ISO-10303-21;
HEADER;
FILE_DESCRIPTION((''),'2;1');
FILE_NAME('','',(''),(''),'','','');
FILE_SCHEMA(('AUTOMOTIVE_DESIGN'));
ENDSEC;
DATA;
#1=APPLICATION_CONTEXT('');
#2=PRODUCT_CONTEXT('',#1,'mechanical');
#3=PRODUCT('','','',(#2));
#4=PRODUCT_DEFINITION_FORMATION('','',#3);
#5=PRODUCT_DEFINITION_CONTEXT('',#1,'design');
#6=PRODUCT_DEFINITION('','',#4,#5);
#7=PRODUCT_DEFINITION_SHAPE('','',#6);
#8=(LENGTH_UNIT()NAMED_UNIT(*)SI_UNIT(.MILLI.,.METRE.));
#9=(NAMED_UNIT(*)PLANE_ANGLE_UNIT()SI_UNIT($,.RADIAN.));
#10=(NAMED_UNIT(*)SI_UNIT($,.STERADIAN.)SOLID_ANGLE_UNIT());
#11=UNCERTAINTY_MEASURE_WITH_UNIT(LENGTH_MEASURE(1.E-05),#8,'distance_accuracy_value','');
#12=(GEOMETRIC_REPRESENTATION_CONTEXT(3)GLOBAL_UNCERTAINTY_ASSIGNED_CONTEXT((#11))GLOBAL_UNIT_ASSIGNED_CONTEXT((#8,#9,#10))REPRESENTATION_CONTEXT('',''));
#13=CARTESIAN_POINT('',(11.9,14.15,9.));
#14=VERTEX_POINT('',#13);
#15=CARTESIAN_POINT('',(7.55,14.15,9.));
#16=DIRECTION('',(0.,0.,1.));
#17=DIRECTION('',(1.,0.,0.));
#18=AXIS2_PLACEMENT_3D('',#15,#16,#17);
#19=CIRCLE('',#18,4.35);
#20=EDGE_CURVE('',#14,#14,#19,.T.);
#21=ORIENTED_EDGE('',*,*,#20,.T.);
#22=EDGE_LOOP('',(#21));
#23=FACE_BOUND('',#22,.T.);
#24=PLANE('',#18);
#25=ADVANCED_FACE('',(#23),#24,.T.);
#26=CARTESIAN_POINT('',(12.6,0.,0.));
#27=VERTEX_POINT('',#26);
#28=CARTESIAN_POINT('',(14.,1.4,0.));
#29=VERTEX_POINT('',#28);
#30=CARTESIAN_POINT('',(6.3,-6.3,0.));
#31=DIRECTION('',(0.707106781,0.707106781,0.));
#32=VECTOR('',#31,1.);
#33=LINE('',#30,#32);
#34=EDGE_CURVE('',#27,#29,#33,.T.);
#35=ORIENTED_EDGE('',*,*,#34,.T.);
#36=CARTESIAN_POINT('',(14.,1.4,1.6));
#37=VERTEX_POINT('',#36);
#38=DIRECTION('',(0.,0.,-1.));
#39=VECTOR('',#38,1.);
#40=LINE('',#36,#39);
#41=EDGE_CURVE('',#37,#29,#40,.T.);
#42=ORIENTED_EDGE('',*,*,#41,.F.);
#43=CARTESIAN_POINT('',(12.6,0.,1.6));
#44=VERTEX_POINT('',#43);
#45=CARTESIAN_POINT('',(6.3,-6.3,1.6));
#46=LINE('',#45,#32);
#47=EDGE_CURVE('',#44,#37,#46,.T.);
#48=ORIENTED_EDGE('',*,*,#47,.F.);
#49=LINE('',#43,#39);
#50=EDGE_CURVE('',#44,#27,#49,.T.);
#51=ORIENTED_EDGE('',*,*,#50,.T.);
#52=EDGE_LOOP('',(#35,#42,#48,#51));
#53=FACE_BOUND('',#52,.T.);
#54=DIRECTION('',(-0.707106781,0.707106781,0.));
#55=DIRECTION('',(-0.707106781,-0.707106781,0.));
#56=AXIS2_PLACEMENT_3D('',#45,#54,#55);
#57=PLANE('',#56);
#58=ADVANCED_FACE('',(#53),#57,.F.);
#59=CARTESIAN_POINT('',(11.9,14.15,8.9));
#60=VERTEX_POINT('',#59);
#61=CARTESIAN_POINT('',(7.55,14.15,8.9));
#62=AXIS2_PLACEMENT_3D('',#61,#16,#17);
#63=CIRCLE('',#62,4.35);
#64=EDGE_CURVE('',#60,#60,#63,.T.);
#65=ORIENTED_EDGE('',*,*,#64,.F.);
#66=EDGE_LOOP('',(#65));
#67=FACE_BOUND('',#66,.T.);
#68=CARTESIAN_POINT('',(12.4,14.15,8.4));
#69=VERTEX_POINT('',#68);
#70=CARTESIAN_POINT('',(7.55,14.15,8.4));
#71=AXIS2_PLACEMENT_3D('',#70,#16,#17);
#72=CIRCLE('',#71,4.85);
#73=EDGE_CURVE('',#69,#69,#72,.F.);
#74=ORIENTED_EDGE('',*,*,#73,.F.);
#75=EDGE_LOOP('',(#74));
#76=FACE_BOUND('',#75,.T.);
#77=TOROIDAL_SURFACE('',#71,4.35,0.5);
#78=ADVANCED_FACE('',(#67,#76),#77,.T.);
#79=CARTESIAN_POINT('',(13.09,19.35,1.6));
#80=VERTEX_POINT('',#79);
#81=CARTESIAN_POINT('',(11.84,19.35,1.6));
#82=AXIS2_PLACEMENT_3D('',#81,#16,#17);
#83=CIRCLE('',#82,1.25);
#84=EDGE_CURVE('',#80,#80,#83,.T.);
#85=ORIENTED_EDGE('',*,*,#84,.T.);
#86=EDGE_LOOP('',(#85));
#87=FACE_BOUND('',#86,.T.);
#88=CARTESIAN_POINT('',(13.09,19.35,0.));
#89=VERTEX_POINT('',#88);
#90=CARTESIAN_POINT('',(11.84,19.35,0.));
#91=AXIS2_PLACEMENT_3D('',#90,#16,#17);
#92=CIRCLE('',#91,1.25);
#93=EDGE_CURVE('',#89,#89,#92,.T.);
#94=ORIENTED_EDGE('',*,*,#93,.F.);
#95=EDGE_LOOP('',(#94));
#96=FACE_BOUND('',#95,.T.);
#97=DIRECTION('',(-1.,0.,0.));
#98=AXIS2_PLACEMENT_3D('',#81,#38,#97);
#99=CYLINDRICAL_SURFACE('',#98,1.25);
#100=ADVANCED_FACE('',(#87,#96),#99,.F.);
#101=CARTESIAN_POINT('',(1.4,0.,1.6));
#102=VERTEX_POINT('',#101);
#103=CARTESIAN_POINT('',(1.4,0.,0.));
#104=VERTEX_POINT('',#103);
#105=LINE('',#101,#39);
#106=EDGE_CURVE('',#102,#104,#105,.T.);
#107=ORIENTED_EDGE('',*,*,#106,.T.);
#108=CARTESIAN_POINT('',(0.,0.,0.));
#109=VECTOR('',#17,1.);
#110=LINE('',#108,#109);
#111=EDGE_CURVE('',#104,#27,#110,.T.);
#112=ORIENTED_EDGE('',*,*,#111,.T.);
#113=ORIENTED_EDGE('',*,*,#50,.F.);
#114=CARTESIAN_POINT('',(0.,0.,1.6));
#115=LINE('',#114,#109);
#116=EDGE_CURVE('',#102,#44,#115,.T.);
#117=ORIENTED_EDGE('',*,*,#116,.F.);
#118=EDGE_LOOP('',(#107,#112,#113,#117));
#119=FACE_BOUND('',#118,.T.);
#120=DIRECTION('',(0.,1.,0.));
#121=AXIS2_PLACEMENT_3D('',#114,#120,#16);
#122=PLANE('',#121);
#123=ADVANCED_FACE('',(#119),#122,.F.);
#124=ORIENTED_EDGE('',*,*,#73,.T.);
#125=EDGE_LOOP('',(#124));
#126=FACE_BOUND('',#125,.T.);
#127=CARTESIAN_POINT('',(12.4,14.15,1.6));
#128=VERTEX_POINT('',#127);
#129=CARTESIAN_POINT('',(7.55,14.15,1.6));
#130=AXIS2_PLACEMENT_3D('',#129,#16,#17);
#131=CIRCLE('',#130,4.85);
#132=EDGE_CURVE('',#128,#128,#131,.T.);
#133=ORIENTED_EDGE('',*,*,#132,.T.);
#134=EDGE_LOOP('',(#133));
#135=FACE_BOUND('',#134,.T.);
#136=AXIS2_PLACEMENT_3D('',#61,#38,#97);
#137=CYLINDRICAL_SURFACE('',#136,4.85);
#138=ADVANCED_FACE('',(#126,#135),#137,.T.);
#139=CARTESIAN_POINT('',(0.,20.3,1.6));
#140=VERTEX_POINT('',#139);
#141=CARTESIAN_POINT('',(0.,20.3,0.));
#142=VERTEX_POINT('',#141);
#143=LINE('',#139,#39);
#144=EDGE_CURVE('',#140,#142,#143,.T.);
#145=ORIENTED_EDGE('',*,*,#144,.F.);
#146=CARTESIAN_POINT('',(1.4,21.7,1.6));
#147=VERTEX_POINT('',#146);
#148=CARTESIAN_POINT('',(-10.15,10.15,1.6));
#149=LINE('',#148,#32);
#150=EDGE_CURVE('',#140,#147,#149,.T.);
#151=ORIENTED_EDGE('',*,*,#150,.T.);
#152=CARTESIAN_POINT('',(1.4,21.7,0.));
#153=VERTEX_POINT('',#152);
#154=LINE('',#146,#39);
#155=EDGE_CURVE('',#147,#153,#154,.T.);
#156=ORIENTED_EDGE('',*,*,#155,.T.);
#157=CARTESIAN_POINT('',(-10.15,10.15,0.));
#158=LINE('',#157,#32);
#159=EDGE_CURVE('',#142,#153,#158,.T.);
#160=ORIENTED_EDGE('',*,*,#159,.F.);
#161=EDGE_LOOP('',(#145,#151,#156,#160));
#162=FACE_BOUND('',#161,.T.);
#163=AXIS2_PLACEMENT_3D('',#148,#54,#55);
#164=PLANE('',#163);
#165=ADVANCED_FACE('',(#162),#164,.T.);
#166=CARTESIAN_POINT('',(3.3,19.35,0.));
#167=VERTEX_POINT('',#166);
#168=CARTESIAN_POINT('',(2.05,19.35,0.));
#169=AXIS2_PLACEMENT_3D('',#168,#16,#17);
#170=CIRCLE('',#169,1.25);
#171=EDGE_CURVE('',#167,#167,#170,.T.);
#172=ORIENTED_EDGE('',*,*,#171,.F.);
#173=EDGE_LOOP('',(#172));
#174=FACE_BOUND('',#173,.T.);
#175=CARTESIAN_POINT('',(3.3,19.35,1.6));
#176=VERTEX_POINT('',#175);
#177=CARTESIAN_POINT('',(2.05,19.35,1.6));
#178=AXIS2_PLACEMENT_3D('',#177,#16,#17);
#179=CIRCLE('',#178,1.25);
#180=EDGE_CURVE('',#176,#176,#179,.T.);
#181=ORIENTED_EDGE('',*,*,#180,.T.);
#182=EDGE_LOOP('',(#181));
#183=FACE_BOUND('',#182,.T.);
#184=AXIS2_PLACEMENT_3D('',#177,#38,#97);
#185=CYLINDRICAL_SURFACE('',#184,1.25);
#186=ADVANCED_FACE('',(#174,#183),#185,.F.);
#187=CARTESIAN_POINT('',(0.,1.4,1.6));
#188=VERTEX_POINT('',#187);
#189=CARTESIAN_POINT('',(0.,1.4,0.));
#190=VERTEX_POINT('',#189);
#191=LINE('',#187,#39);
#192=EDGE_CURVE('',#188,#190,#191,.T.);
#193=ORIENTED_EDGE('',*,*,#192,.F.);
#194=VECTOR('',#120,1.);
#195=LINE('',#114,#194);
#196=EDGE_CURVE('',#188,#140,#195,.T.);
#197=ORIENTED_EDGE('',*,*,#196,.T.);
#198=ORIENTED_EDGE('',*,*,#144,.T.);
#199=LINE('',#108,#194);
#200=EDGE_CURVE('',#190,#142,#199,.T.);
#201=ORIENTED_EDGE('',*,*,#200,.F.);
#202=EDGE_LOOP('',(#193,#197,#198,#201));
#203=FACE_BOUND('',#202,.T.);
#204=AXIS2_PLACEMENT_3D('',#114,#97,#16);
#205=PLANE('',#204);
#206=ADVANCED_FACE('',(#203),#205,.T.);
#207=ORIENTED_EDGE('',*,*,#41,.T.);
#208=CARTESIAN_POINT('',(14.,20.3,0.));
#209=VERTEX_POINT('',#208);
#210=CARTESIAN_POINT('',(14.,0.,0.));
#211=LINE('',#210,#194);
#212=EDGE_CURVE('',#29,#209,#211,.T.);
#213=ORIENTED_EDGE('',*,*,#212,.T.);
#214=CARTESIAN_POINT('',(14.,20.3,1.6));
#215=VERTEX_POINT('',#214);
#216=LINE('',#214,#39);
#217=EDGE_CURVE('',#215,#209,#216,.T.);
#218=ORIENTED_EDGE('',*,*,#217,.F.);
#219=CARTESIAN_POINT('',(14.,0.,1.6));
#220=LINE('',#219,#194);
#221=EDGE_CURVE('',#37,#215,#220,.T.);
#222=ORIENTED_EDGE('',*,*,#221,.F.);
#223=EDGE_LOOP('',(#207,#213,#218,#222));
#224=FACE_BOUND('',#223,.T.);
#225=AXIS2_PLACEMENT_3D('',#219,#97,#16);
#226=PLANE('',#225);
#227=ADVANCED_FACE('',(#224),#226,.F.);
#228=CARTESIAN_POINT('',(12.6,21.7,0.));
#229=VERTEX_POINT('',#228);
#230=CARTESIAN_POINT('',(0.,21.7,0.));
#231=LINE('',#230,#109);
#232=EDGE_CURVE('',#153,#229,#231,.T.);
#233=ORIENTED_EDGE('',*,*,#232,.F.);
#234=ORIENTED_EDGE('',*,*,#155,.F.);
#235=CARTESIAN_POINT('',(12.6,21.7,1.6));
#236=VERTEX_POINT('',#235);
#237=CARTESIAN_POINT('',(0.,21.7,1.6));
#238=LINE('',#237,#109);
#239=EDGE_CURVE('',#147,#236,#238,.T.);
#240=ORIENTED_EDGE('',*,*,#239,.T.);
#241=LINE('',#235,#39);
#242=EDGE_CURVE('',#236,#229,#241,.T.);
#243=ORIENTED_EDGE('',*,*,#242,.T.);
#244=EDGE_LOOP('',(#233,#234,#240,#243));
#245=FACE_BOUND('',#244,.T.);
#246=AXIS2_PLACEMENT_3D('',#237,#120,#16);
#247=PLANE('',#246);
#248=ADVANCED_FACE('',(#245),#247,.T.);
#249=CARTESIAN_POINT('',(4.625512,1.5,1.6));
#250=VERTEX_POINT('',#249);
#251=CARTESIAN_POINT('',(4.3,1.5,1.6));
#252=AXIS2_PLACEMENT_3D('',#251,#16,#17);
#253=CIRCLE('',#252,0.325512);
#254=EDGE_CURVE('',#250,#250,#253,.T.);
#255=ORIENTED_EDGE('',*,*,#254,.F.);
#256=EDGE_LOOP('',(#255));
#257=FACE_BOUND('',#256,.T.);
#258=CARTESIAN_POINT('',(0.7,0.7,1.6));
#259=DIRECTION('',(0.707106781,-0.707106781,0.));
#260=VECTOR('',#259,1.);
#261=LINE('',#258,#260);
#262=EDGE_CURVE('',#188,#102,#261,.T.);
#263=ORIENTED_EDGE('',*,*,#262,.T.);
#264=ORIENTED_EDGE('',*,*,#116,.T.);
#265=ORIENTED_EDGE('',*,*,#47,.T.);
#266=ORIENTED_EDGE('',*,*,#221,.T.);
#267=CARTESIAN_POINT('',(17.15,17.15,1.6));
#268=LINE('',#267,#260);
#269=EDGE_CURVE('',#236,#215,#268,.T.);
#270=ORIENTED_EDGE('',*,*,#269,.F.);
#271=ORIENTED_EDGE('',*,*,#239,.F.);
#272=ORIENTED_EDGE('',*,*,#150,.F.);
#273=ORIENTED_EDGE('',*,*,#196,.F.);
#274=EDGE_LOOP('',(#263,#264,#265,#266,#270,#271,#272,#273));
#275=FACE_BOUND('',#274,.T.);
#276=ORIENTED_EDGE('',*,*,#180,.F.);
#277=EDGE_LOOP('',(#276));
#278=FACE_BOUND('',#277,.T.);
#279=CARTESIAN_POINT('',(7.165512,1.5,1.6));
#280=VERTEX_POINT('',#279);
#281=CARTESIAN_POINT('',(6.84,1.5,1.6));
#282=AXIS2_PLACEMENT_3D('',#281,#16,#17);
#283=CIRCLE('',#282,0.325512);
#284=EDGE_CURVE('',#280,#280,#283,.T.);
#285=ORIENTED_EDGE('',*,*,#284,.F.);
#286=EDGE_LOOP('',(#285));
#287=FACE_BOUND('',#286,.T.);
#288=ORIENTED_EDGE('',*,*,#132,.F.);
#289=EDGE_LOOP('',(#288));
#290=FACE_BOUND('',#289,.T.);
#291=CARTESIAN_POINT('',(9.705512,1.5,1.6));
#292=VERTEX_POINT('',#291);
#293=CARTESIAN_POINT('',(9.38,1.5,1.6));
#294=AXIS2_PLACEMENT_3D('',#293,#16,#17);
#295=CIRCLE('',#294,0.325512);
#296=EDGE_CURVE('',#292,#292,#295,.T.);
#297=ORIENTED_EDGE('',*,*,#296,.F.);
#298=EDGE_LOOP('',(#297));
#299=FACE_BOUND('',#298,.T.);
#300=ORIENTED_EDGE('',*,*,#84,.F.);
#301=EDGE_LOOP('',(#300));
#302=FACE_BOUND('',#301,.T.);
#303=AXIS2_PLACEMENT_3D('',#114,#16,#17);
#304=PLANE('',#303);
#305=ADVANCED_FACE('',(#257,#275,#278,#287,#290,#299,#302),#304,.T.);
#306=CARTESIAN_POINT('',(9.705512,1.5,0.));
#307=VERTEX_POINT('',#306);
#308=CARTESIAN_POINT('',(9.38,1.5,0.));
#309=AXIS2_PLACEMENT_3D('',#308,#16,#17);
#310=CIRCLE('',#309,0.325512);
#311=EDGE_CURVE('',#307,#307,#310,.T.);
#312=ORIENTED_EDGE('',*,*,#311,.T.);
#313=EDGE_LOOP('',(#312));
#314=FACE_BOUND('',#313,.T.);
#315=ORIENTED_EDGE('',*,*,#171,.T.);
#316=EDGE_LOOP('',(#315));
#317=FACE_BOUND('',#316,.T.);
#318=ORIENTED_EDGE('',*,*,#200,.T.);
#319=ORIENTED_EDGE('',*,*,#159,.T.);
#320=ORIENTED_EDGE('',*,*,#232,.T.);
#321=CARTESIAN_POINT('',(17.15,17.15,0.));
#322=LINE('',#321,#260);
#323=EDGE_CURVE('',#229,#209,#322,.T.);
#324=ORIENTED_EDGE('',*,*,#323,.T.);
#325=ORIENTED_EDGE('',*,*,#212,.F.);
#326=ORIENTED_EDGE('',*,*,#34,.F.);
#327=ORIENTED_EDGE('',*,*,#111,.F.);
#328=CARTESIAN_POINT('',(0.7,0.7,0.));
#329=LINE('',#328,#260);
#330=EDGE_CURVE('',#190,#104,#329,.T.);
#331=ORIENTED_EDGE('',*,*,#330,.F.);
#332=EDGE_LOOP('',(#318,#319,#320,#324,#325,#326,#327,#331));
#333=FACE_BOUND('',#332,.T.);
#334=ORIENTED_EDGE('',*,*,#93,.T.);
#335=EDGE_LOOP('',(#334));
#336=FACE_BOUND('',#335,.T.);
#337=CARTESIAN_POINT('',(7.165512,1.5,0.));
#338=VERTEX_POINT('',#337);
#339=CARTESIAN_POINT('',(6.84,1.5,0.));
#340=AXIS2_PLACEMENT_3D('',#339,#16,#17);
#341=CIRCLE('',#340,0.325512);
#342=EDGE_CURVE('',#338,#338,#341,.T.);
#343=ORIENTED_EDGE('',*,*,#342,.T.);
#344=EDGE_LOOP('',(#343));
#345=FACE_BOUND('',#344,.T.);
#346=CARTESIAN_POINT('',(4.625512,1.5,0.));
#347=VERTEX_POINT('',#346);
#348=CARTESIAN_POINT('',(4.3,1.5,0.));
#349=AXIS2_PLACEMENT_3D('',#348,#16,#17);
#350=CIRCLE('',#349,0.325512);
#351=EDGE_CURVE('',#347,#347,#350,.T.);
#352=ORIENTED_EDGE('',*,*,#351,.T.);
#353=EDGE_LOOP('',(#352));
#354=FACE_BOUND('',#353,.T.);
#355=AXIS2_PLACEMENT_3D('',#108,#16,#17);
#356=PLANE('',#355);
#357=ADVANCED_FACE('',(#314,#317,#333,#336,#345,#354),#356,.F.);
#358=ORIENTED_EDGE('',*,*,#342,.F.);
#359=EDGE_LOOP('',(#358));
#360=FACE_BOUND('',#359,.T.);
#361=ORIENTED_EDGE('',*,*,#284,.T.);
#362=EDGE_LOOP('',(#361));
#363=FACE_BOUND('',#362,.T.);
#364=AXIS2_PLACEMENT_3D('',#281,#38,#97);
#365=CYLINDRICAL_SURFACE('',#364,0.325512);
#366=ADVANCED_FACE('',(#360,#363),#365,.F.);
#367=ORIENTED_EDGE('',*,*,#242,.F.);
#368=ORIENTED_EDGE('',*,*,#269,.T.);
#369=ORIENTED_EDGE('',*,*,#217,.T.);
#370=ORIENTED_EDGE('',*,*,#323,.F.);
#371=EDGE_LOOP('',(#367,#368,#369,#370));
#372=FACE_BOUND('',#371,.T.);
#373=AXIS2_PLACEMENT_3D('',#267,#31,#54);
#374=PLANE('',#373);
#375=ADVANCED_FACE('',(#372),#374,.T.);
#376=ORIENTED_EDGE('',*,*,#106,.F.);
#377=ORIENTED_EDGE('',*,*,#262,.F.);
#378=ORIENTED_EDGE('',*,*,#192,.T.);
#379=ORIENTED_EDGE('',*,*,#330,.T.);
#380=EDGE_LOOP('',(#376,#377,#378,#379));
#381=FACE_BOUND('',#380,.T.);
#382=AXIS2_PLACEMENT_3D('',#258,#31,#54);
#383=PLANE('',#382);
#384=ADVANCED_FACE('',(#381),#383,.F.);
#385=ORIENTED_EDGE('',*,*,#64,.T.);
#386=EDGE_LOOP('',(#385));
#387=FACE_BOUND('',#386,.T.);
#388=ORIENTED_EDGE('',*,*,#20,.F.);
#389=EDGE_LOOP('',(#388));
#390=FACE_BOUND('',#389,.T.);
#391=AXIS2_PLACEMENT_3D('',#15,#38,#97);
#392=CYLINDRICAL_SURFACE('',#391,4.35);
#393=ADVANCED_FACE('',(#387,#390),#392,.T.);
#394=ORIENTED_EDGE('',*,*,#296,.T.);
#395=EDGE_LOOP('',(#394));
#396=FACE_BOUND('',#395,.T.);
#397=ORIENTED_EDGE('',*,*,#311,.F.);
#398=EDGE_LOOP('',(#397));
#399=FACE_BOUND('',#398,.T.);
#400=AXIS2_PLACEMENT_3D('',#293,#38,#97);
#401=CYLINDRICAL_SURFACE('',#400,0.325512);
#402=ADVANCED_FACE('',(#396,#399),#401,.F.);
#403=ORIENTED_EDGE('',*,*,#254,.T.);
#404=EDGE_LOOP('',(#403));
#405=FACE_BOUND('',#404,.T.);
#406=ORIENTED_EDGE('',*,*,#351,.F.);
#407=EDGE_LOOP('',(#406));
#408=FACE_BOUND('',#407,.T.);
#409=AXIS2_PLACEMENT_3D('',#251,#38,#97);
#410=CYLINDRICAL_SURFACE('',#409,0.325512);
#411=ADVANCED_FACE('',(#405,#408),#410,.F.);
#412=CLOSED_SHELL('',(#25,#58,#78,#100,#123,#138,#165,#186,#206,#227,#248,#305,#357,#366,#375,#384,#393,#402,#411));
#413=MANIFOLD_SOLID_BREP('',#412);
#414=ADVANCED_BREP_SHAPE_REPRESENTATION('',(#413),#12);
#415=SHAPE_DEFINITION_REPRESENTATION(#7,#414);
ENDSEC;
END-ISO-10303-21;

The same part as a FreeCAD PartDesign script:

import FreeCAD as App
import Part
import Sketcher
from FreeCAD import Vector


def edges_at(feature, points):
    """Names of the edges that pass closest to the given points."""
    edges = feature.Shape.Edges
    near = lambda p: min(range(len(edges)), key=lambda i: edges[i].distToShape(Part.Vertex(*p))[0])
    return sorted({f"Edge{near(p) + 1}" for p in points})


def add_polygon(sketch, points):
    """Adds a closed chain of lines whose ends are joined by coincident constraints."""
    first, n = sketch.GeometryCount, len(points)
    for a, b in zip(points, points[1:] + points[:1]):
        sketch.addGeometry(Part.LineSegment(App.Vector(*a, 0), App.Vector(*b, 0)), False)
    for i in range(n):
        sketch.addConstraint(Sketcher.Constraint("Coincident", first + i, 2, first + (i + 1) % n, 1))

doc = App.newDocument("Part")
body = doc.addObject("PartDesign::Body", "Body")

sketch1 = body.newObject("Sketcher::SketchObject", "Sketch")
sketch1.AttachmentSupport = (doc.getObject("XY_Plane"), [""])
sketch1.MapMode = "FlatFace"
add_polygon(sketch1, [(1.4, 21.7), (0, 20.3), (0, 1.4), (1.4, 0), (12.6, 0), (14, 1.4), (14, 20.3), (12.6, 21.7)])
sketch1.addGeometry(Part.Circle(Vector(9.38, 1.5, 0), Vector(0, 0, 1), 0.325512), False)
sketch1.addGeometry(Part.Circle(Vector(6.84, 1.5, 0), Vector(0, 0, 1), 0.325512), False)
sketch1.addGeometry(Part.Circle(Vector(4.3, 1.5, 0), Vector(0, 0, 1), 0.325512), False)
sketch1.addGeometry(Part.Circle(Vector(11.84, 19.35, 0), Vector(0, 0, 1), 1.25), False)
sketch1.addGeometry(Part.Circle(Vector(2.05, 19.35, 0), Vector(0, 0, 1), 1.25), False)
sketch1.addConstraint([
    Sketcher.Constraint("Vertical", 1),
    Sketcher.Constraint("Horizontal", 3),
    Sketcher.Constraint("Vertical", 5),
    Sketcher.Constraint("Horizontal", 7),
    Sketcher.Constraint("Equal", 8, 9),
    Sketcher.Constraint("Equal", 9, 10),
    Sketcher.Constraint("Equal", 11, 12),
    Sketcher.Constraint("PointOnObject", 0, 2, -2),
    Sketcher.Constraint("PointOnObject", 2, 2, -1),
    Sketcher.Constraint("Perpendicular", 0, 2),
    Sketcher.Constraint("Perpendicular", 2, 4),
    Sketcher.Constraint("Perpendicular", 4, 6),
    Sketcher.Constraint("Horizontal", 8, 3, 9, 3),
    Sketcher.Constraint("Horizontal", 9, 3, 10, 3),
    Sketcher.Constraint("Horizontal", 11, 3, 12, 3),
    Sketcher.Constraint("Horizontal", 1, 2, 4, 2),
    Sketcher.Constraint("Horizontal", 0, 2, 5, 2),
    Sketcher.Constraint("Vertical", 3, 2, 6, 2),
    Sketcher.Constraint("Vertical", 2, 2, 7, 2),
    Sketcher.Constraint("Diameter", 11, 2.5),
    Sketcher.Constraint("DistanceX", 3, 1, 3, 2, 11.2),
    Sketcher.Constraint("DistanceY", 1, 2, 1, 1, 18.9),
    Sketcher.Constraint("DistanceX", -1, 1, 4, 2, 14.0),
    Sketcher.Constraint("DistanceX", 9, 3, 11, 3, 5.0),
    Sketcher.Constraint("DistanceY", -1, 1, 8, 3, 1.5),
    Sketcher.Constraint("DistanceX", -1, 1, 10, 3, 4.3),
    Sketcher.Constraint("DistanceX", -1, 1, 8, 3, 9.38),
    Sketcher.Constraint("DistanceX", -1, 1, 9, 3, 6.84),
    Sketcher.Constraint("DistanceY", -1, 1, 11, 3, 19.35),
    Sketcher.Constraint("DistanceX", -1, 1, 12, 3, 2.05),
    Sketcher.Constraint("Diameter", 8, 0.651024),
])
pad1 = body.newObject("PartDesign::Pad", "Pad")
pad1.Profile = sketch1
pad1.Length = 1.6

sketch2 = body.newObject("Sketcher::SketchObject", "Sketch001")
sketch2.AttachmentSupport = (doc.getObject("XY_Plane"), [""])
sketch2.MapMode = "FlatFace"
sketch2.AttachmentOffset = App.Placement(Vector(0, 0, 1.6), App.Rotation())
sketch2.addGeometry(Part.Circle(Vector(7.55, 14.15, 0), Vector(0, 0, 1), 4.85), False)
sketch2.addConstraint([
    Sketcher.Constraint("Diameter", 0, 9.7),
    Sketcher.Constraint("DistanceX", -1, 1, 0, 3, 7.55),
    Sketcher.Constraint("DistanceY", -1, 1, 0, 3, 14.15),
])
pad2 = body.newObject("PartDesign::Pad", "Pad001")
pad2.Profile = sketch2
pad2.Length = 7.3
doc.recompute()

fillet = body.newObject("PartDesign::Fillet", "Fillet")
fillet.Base = (pad2, edges_at(pad2, [(2.7, 14.15, 8.9)]))
fillet.Radius = 0.5

sketch3 = body.newObject("Sketcher::SketchObject", "Sketch002")
sketch3.AttachmentSupport = (doc.getObject("XY_Plane"), [""])
sketch3.MapMode = "FlatFace"
sketch3.AttachmentOffset = App.Placement(Vector(0, 0, 8.9), App.Rotation())
sketch3.addGeometry(Part.Circle(Vector(7.55, 14.15, 0), Vector(0, 0, 1), 4.35), False)
sketch3.addConstraint([
    Sketcher.Constraint("Diameter", 0, 8.7),
    Sketcher.Constraint("DistanceX", -1, 1, 0, 3, 7.55),
    Sketcher.Constraint("DistanceY", -1, 1, 0, 3, 14.15),
])
pad3 = body.newObject("PartDesign::Pad", "Pad002")
pad3.Profile = sketch3
pad3.Length = 0.1

doc.recompute()
